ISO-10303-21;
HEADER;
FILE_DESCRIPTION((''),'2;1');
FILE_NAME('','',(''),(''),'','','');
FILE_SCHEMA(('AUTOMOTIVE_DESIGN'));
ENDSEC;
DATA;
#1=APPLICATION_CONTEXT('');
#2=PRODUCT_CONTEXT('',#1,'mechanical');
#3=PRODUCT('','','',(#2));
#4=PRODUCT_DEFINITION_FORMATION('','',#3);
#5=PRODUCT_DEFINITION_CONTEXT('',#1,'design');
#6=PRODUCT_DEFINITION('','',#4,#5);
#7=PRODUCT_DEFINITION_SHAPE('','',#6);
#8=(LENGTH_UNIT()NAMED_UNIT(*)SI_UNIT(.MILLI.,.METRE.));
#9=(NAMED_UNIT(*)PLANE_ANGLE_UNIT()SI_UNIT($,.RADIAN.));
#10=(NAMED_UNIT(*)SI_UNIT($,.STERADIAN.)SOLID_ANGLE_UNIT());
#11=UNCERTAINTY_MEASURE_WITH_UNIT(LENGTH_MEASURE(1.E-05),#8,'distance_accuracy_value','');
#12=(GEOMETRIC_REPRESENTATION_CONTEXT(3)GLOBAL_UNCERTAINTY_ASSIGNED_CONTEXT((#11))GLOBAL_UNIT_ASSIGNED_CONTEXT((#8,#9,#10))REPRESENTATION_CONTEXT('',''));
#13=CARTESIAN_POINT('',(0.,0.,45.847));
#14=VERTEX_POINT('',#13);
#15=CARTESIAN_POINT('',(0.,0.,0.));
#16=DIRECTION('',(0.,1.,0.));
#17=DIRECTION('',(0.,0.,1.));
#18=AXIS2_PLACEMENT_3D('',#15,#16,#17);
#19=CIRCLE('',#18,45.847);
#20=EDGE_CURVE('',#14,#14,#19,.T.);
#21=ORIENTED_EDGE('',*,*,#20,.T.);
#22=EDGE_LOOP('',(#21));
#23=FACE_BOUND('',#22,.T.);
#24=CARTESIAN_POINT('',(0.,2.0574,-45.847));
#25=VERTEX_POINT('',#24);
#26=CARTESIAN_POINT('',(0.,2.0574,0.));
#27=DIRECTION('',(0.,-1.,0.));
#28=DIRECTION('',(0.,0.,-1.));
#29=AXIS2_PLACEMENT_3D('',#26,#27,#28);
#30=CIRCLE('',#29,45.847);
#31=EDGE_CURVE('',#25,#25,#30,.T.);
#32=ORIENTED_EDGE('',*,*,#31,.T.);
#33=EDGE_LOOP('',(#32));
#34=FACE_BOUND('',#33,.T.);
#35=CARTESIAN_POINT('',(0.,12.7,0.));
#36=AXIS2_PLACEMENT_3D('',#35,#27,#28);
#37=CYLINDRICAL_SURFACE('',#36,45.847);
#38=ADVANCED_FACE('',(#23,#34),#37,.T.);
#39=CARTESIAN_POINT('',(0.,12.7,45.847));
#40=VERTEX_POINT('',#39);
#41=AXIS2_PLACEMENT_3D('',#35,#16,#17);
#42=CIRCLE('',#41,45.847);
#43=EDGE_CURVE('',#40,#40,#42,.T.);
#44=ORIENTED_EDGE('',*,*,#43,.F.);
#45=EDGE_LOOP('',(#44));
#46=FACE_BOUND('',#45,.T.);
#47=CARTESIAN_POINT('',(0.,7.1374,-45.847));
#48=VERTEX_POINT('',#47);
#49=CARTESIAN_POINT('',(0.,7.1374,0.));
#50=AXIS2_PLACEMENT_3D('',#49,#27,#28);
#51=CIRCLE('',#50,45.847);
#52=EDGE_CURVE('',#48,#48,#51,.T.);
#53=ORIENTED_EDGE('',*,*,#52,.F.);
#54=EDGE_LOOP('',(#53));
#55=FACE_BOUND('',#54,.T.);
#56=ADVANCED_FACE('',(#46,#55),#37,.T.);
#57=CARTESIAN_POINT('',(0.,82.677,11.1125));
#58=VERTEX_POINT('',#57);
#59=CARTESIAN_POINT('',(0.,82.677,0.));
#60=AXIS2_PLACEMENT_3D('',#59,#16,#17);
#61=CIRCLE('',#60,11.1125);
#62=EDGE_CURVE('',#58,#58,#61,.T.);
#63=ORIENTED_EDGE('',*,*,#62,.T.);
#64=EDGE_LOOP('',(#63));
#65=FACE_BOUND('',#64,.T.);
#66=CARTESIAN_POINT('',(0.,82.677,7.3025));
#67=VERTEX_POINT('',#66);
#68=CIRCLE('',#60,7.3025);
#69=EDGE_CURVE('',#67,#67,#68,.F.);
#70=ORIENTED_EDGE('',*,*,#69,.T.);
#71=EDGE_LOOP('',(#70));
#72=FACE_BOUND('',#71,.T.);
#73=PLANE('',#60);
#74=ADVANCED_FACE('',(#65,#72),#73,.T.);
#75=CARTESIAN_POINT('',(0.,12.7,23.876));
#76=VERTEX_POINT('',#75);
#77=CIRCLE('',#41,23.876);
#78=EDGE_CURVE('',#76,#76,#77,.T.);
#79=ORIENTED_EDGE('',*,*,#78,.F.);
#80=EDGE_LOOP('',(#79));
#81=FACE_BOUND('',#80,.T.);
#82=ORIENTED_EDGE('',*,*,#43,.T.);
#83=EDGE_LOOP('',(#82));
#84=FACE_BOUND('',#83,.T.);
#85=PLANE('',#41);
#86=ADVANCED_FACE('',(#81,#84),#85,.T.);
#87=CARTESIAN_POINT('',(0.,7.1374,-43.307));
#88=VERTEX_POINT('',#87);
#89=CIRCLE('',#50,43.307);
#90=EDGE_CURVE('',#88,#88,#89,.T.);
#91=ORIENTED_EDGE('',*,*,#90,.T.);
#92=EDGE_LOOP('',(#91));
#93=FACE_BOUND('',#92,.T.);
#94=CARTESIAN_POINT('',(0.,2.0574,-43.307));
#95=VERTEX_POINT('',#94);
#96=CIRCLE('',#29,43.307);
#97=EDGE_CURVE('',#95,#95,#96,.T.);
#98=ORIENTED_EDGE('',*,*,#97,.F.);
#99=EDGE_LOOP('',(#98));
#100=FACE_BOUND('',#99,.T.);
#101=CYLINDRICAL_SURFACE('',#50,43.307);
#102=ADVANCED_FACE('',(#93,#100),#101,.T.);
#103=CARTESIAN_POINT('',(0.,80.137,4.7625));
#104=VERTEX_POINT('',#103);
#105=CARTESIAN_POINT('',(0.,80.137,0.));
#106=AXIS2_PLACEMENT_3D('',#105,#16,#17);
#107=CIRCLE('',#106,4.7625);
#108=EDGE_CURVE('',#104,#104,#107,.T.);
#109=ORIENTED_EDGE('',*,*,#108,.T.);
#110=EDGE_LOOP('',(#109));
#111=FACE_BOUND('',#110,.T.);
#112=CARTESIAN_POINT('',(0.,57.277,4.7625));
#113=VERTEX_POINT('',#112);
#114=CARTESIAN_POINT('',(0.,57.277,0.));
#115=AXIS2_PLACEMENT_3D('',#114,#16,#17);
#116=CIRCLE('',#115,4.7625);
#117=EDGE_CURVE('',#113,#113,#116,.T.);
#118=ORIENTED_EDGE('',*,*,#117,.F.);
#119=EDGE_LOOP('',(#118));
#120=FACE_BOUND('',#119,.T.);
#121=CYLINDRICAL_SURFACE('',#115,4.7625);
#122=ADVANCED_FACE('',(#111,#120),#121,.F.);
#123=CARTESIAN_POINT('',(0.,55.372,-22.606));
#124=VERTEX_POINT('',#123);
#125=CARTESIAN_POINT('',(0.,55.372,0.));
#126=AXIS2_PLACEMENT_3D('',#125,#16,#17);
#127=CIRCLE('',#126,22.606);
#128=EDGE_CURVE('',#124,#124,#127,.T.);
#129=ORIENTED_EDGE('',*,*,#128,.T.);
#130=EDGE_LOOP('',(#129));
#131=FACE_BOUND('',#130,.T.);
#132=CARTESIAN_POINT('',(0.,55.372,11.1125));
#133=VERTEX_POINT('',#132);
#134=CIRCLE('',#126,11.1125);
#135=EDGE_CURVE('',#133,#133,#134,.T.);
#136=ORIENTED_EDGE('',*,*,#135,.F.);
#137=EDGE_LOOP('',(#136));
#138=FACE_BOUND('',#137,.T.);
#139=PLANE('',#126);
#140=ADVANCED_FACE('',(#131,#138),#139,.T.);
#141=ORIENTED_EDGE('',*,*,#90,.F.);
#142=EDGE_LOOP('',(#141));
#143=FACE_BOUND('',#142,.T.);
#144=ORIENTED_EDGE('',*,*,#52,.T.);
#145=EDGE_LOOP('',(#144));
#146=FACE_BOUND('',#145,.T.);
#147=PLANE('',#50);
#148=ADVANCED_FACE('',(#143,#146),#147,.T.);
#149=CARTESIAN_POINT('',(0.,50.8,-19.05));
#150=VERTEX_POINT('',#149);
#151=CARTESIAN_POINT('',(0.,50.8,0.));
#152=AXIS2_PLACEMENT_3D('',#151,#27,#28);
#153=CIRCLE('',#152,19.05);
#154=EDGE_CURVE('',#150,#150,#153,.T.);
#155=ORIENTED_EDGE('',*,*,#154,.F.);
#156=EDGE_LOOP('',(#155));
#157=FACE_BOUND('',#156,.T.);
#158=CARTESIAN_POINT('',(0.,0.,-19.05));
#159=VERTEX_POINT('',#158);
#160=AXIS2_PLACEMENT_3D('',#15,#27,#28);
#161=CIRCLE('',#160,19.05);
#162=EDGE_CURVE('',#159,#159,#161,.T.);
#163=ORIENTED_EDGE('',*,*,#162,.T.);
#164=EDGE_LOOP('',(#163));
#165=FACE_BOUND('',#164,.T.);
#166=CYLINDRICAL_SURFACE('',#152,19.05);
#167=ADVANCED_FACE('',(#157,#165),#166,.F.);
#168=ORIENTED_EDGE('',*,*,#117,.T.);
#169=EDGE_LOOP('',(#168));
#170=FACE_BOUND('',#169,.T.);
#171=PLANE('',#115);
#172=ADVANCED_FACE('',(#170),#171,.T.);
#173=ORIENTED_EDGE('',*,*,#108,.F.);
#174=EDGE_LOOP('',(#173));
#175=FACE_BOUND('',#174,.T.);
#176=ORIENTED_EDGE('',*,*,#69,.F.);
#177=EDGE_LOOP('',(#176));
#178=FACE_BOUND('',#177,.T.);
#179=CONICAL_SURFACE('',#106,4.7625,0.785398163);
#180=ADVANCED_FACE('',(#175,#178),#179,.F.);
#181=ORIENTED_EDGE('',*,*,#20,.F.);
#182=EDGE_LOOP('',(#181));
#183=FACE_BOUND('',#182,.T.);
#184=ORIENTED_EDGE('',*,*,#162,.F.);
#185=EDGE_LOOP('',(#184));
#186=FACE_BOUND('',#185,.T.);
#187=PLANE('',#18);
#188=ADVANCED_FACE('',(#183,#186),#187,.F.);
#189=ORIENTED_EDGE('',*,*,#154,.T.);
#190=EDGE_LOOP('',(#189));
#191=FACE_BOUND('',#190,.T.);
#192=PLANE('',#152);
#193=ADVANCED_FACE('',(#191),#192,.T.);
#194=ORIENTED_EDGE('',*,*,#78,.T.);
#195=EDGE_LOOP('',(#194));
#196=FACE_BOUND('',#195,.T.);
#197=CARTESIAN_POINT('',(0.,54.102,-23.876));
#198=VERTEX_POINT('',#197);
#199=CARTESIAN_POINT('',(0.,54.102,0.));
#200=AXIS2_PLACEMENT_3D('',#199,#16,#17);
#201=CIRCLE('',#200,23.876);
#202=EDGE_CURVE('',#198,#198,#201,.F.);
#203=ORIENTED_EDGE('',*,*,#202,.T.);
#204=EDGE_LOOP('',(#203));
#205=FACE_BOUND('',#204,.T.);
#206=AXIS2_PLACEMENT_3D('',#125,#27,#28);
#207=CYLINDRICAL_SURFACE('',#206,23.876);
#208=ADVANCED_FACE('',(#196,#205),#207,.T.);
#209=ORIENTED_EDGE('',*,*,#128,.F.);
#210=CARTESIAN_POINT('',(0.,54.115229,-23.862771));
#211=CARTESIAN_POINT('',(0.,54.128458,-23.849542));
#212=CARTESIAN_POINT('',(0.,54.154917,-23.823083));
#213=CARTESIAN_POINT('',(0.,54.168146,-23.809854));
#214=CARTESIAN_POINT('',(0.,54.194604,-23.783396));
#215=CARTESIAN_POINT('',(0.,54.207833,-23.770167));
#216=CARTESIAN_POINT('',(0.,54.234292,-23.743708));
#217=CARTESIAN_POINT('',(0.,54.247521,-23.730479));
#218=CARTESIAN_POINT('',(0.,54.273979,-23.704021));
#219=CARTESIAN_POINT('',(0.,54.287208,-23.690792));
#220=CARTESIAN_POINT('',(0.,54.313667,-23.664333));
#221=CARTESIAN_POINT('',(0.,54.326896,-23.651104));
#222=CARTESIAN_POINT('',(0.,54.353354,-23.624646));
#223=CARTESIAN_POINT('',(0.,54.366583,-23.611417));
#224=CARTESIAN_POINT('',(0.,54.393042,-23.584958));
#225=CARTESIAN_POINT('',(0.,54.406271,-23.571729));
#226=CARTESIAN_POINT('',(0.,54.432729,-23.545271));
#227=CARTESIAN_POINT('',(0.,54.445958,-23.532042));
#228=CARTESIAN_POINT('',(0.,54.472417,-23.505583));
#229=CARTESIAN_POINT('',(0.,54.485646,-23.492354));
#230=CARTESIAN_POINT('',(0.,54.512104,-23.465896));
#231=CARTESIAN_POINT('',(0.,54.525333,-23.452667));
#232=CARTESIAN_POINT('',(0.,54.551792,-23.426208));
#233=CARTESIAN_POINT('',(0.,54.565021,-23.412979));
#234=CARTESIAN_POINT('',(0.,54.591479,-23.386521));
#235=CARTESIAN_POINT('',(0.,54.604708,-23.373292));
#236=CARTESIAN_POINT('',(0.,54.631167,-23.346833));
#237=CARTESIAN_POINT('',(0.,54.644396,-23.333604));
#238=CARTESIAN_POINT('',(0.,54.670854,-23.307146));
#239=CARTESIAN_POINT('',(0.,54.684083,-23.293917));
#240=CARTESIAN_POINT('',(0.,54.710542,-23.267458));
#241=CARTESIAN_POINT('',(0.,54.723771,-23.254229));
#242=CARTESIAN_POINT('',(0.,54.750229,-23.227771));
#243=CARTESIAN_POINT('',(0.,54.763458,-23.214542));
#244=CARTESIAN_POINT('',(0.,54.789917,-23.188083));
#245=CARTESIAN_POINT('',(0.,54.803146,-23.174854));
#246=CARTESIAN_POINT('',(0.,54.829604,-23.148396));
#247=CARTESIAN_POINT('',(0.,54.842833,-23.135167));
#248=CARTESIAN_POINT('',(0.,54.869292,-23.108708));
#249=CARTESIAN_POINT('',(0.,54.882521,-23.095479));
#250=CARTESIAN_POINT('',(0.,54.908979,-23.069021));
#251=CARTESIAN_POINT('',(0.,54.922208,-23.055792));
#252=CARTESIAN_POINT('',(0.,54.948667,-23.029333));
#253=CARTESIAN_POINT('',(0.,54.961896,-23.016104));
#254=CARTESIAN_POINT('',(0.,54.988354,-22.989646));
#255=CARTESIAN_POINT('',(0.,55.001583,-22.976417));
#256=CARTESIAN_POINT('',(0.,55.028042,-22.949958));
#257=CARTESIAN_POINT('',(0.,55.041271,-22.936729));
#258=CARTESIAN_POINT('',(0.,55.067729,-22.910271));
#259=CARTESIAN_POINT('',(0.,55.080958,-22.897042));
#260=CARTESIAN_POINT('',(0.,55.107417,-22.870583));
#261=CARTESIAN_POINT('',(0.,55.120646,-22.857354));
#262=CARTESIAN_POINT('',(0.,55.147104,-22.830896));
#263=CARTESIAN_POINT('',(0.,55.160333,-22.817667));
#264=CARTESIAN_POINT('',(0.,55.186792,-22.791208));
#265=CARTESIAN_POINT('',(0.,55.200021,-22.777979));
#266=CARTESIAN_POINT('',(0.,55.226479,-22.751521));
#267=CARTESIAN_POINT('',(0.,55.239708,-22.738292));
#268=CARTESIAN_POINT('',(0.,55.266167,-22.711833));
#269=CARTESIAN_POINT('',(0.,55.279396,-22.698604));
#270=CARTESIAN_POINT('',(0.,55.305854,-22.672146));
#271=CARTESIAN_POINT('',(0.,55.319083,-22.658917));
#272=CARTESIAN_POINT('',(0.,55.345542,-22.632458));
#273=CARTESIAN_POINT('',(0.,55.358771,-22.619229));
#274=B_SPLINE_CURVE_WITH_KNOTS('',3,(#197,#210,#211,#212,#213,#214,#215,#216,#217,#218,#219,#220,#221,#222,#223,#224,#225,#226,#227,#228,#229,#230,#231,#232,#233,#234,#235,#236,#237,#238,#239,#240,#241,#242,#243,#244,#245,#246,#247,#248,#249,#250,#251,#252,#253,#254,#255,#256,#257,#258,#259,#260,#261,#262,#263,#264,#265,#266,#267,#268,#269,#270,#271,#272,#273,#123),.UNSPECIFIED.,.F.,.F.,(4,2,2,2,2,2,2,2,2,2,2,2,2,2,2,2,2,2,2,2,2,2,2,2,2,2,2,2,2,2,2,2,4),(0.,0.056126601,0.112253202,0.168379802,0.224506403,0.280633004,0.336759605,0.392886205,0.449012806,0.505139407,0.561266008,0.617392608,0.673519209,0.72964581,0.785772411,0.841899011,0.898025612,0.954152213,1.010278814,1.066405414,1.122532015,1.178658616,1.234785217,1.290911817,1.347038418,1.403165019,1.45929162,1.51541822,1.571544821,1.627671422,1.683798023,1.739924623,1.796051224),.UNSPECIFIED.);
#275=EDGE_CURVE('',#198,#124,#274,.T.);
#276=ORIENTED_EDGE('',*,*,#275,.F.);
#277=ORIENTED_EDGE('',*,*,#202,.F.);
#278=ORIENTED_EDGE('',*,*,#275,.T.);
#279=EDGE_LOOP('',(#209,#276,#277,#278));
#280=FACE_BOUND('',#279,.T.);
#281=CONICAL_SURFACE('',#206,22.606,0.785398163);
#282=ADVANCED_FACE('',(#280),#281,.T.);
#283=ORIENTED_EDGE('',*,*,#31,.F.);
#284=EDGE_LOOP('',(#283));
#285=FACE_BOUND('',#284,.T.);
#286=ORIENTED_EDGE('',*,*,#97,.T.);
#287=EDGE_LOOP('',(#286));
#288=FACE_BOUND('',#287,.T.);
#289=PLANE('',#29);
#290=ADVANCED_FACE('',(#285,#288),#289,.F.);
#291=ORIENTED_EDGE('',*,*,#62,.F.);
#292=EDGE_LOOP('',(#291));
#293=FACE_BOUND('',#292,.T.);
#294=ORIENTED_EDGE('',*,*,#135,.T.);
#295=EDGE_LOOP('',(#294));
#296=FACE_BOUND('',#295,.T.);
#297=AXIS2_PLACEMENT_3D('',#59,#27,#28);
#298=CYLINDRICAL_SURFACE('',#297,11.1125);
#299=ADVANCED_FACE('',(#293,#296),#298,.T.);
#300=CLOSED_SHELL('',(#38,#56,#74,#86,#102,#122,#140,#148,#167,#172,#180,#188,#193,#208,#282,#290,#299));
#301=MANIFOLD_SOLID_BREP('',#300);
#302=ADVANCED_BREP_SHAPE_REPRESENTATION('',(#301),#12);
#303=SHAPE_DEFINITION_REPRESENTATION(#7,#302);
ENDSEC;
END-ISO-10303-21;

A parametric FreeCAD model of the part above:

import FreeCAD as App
import Part
import Sketcher
Q = App.Units.Quantity


def edges_at(feature, points):
    """Names of the edges that pass closest to the given points."""
    edges = feature.Shape.Edges
    near = lambda p: min(range(len(edges)), key=lambda i: edges[i].distToShape(Part.Vertex(*p))[0])
    return sorted({f"Edge{near(p) + 1}" for p in points})

doc = App.newDocument("Part")
body = doc.addObject("PartDesign::Body", "Body")

# Sketch on XZ plane
sketch1 = body.newObject("Sketcher::SketchObject", "Sketch")
sketch1.AttachmentSupport = (doc.getObject("XZ_Plane"), [""])
sketch1.MapMode = "FlatFace"
sketch1.addGeometry(Part.Circle(App.Vector(0, 0, 0), App.Vector(0, 0, 1), 45.847), False)
sketch1.addConstraint([
    Sketcher.Constraint("Coincident", 0, 3, -1, 1),
    Sketcher.Constraint("Diameter", 0, Q("3.61 in")),
])
pad1 = body.newObject("PartDesign::Pad", "Pad")
pad1.Profile = sketch1
pad1.Length = Q("0.5 in")
pad1.Reversed = True

# Sketch on XZ plane
sketch2 = body.newObject("Sketcher::SketchObject", "Sketch001")
sketch2.AttachmentSupport = (doc.getObject("XZ_Plane"), [""])
sketch2.MapMode = "FlatFace"
sketch2.AttachmentOffset = App.Placement(App.Vector(0, 0, -0.5 * 25.4), App.Rotation())
sketch2.addGeometry(Part.Circle(App.Vector(0, 0, 0), App.Vector(0, 0, 1), 23.876), False)
sketch2.addConstraint([
    Sketcher.Constraint("Coincident", 0, 3, -1, 1),
    Sketcher.Constraint("Diameter", 0, Q("1.88 in")),
])
pad2 = body.newObject("PartDesign::Pad", "Pad001")
pad2.Profile = sketch2
pad2.Length = Q("1.68 in")
pad2.Reversed = True

# Sketch on XZ plane
sketch3 = body.newObject("Sketcher::SketchObject", "Sketch002")
sketch3.AttachmentSupport = (doc.getObject("XZ_Plane"), [""])
sketch3.MapMode = "FlatFace"
sketch3.AttachmentOffset = App.Placement(App.Vector(0, 0, -2.18 * 25.4), App.Rotation())
sketch3.addGeometry(Part.Circle(App.Vector(0, 0, 0), App.Vector(0, 0, 1), 11.1125), False)
sketch3.addConstraint([
    Sketcher.Constraint("Coincident", 0, 3, -1, 1),
    Sketcher.Constraint("Diameter", 0, Q("0.875 in")),
])
pad3 = body.newObject("PartDesign::Pad", "Pad002")
pad3.Profile = sketch3
pad3.Length = Q("1.075 in")
pad3.Reversed = True

# Sketch on XZ plane
sketch4 = body.newObject("Sketcher::SketchObject", "Sketch003")
sketch4.AttachmentSupport = (doc.getObject("XZ_Plane"), [""])
sketch4.MapMode = "FlatFace"
sketch4.AttachmentOffset = App.Placement(App.Vector(0, 0, -3.255 * 25.4), App.Rotation())
sketch4.addGeometry(Part.Circle(App.Vector(0, 0, 0), App.Vector(0, 0, 1), 4.7625), False)
sketch4.addConstraint([
    Sketcher.Constraint("Coincident", 0, 3, -1, 1),
    Sketcher.Constraint("Diameter", 0, Q("0.375 in")),
])
pocket1 = body.newObject("PartDesign::Pocket", "Pocket")
pocket1.Profile = sketch4
pocket1.Length = Q("1 in")
pocket1.Reversed = True
doc.recompute()

chamfer = body.newObject("PartDesign::Chamfer", "Chamfer")
chamfer.Base = (pocket1, edges_at(pocket1, [(0, 82.677, -4.763)]))
chamfer.Size = Q("0.1 in")
doc.recompute()

chamfer2 = body.newObject("PartDesign::Chamfer", "Chamfer001")
chamfer2.Base = (chamfer, edges_at(chamfer, [(0, 55.372, -23.876)]))
chamfer2.Size = Q("0.05 in")

# Sketch on XZ plane
sketch5 = body.newObject("Sketcher::SketchObject", "Sketch004")
sketch5.AttachmentSupport = (doc.getObject("XZ_Plane"), [""])
sketch5.MapMode = "FlatFace"
sketch5.addGeometry(Part.Circle(App.Vector(0, 0, 0), App.Vector(0, 0, 1), 19.05), False)
sketch5.addConstraint([
    Sketcher.Constraint("Coincident", 0, 3, -1, 1),
    Sketcher.Constraint("Diameter", 0, Q("1.5 in")),
])
pocket2 = body.newObject("PartDesign::Pocket", "Pocket001")
pocket2.Profile = sketch5
pocket2.Length = Q("2 in")

# Sketch on XZ plane
sketch6 = body.newObject("Sketcher::SketchObject", "Sketch005")
sketch6.AttachmentSupport = (doc.getObject("XZ_Plane"), [""])
sketch6.MapMode = "FlatFace"
sketch6.AttachmentOffset = App.Placement(App.Vector(0, 0, -0.081 * 25.4), App.Rotation())
sketch6.addGeometry([
    Part.Circle(App.Vector(0, 0, 0), App.Vector(0, 0, 1), 45.847),
    Part.Circle(App.Vector(0, 0, 0), App.Vector(0, 0, 1), 43.307),
], False)
sketch6.addConstraint([
    Sketcher.Constraint("Coincident", 0, 3, -1, 1),
    Sketcher.Constraint("Coincident", 1, 3, -1, 1),
    Sketcher.Constraint("Diameter", 0, Q("3.61 in")),
    Sketcher.Constraint("Diameter", 1, Q("3.41 in")),
])
pocket3 = body.newObject("PartDesign::Pocket", "Pocket002")
pocket3.Profile = sketch6
pocket3.Length = Q("0.2 in")

doc.recompute()
